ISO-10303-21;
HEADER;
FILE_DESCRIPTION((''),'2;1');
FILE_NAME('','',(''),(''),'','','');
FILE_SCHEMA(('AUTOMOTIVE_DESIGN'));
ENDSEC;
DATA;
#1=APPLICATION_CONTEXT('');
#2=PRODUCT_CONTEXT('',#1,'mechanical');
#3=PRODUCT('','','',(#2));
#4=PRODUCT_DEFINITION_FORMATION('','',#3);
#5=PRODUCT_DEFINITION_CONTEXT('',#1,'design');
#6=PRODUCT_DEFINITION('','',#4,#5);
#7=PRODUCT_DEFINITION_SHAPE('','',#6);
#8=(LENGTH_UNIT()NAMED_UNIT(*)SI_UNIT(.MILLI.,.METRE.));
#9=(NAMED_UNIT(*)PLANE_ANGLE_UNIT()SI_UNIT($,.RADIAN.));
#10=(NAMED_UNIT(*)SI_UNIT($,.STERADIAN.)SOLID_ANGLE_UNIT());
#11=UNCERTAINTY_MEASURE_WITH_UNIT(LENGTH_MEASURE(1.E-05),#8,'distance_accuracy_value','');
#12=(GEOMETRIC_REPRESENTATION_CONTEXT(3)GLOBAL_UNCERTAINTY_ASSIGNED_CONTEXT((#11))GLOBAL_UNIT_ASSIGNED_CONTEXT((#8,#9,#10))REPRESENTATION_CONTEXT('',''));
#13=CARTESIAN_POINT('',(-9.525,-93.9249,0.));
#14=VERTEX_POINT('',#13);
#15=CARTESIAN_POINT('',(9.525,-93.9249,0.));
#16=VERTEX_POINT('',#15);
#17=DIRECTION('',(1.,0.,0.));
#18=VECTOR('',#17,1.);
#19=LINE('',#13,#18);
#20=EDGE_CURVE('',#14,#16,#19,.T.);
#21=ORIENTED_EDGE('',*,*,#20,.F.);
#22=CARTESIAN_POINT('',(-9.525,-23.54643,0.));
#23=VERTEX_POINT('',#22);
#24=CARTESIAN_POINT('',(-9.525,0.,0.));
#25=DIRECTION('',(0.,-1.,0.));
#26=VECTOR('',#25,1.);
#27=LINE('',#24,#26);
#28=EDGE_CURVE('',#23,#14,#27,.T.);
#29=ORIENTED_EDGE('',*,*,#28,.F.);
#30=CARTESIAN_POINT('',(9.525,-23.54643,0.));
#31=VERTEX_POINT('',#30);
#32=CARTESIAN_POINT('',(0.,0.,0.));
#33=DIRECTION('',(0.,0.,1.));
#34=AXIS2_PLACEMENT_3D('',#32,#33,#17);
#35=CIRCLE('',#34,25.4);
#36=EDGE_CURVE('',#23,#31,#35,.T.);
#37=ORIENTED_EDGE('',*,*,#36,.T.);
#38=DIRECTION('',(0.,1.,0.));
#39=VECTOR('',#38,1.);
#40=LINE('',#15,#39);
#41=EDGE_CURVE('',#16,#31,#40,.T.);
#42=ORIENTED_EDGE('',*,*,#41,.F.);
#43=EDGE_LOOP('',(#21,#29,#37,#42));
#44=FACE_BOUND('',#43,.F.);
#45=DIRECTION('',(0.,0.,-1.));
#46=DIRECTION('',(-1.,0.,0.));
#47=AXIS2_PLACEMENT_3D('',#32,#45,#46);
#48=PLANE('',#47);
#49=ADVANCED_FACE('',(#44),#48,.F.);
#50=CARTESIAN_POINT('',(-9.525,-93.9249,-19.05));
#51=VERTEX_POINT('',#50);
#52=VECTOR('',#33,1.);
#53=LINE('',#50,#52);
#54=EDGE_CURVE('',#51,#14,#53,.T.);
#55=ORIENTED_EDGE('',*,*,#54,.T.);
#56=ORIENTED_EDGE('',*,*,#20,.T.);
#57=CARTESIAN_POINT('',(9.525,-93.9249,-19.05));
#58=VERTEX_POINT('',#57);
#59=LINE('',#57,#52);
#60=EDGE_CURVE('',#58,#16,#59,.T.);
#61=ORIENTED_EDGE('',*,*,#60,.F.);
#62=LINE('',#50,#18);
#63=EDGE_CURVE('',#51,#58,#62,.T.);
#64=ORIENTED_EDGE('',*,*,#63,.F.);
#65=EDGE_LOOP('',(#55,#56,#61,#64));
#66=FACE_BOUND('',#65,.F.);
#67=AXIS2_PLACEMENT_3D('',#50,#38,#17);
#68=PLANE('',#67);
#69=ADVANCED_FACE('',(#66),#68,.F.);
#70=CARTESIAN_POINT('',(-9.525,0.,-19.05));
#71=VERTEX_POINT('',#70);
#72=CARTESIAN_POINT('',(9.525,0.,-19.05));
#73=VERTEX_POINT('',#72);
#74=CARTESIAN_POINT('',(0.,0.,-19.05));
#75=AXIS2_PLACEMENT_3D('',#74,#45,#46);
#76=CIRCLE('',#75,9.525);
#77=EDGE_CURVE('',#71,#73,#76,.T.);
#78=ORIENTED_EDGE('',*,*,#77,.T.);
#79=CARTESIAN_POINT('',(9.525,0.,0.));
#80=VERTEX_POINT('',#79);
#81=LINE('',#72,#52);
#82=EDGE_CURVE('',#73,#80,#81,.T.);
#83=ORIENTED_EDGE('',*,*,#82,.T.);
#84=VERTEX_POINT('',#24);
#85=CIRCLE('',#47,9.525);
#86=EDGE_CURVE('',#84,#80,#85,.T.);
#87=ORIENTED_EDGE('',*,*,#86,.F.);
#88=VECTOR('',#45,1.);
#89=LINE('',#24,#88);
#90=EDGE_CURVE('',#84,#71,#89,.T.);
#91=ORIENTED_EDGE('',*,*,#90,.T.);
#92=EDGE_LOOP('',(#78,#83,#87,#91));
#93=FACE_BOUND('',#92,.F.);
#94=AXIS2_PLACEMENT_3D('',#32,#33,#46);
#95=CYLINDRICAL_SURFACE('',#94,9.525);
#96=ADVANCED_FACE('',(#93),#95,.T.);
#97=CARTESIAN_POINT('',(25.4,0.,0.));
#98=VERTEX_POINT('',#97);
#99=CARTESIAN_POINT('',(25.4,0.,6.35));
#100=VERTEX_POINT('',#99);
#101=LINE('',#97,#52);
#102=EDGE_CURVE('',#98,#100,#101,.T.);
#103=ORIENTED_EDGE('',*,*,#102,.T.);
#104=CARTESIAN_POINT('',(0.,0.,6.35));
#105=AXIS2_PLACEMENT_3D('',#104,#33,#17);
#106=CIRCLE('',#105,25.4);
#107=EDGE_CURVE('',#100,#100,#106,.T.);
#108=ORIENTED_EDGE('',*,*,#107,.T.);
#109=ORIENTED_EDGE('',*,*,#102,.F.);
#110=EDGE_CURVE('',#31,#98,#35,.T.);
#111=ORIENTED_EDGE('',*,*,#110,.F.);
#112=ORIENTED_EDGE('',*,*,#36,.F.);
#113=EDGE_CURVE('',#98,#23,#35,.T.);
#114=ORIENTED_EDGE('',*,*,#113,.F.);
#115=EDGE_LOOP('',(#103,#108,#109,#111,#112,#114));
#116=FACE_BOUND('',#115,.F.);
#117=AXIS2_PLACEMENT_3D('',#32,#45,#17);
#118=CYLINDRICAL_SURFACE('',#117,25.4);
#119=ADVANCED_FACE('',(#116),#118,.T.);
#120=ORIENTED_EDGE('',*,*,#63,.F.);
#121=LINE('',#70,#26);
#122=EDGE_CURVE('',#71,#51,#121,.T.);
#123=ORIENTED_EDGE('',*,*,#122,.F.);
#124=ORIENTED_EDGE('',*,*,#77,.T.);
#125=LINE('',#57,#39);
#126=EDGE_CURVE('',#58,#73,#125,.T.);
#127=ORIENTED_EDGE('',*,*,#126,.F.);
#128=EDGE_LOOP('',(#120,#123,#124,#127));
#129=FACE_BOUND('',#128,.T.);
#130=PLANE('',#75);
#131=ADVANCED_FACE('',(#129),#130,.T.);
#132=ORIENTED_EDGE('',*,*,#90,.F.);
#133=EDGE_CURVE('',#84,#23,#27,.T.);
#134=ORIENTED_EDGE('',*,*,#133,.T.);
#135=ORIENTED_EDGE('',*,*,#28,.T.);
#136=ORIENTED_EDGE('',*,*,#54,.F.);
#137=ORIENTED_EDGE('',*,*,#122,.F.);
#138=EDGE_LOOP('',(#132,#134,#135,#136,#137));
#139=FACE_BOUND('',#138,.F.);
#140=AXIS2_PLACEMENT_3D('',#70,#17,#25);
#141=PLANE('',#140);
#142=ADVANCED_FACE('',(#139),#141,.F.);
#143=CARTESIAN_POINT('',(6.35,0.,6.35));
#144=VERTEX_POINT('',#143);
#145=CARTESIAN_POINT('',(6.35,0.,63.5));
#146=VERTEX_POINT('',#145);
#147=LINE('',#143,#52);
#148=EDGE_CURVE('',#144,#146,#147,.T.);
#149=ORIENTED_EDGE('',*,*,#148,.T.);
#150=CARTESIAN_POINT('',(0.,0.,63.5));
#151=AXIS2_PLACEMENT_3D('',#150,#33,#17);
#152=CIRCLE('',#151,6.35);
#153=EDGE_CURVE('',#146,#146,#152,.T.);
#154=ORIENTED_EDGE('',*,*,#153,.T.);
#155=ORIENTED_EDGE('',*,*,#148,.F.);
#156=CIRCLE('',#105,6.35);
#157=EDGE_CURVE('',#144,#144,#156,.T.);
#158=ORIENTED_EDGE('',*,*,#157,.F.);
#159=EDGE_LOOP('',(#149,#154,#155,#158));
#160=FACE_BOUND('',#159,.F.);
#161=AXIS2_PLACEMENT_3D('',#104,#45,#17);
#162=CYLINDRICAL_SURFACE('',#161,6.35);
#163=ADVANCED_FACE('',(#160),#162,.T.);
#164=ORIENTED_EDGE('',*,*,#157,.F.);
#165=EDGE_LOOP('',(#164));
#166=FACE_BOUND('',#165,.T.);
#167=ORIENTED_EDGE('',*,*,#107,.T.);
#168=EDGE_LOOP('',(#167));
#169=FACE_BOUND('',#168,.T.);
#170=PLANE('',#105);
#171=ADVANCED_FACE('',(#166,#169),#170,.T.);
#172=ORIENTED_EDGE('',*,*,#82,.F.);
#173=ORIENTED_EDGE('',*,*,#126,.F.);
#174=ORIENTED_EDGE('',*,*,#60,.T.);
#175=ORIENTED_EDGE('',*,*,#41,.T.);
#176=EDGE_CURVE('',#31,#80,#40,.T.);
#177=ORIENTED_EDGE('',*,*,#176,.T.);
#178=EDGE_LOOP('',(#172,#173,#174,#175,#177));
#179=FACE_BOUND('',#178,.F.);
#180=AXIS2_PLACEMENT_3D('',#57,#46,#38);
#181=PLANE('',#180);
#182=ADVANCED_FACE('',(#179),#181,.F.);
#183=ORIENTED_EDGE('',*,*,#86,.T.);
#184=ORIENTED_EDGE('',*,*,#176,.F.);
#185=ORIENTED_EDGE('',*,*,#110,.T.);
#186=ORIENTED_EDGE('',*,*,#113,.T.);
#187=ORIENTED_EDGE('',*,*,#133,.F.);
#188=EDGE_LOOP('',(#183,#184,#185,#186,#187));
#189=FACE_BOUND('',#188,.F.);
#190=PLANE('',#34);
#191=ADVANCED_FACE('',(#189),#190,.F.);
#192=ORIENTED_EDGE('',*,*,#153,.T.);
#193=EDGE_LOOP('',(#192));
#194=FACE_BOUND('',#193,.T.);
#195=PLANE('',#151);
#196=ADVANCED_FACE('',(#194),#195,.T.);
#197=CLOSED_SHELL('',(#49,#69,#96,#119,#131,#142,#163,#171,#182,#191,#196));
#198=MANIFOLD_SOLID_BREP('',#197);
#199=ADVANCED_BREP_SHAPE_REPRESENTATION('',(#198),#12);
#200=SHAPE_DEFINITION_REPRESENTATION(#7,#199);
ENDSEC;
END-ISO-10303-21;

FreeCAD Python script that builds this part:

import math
import FreeCAD as App
import Part
import Sketcher
from FreeCAD import Vector
Q = App.Units.Quantity

doc = App.newDocument("Part")
body = doc.addObject("PartDesign::Body", "Body")

sketch1 = body.newObject("Sketcher::SketchObject", "Sketch")
sketch1.AttachmentSupport = (doc.getObject("XY_Plane"), [""])
sketch1.MapMode = "FlatFace"
sketch1.addGeometry(Part.Circle(Vector(0, 0, 0), Vector(0, 0, 1), 25.4), False)
sketch1.addConstraint([
    Sketcher.Constraint("Coincident", 0, 3, -1, 1),
    Sketcher.Constraint("Diameter", 0, Q("2 in")),
])
pad1 = body.newObject("PartDesign::Pad", "Pad")
pad1.Profile = sketch1
pad1.Length = Q("0.25 in")

sketch2 = body.newObject("Sketcher::SketchObject", "Sketch001")
sketch2.AttachmentSupport = (doc.getObject("XY_Plane"), [""])
sketch2.MapMode = "FlatFace"
sketch2.AttachmentOffset = App.Placement(Vector(0, 0, 0.25 * 25.4), App.Rotation())
sketch2.addGeometry(Part.Circle(Vector(0, 0, 0), Vector(0, 0, 1), 6.35), False)
sketch2.addConstraint([
    Sketcher.Constraint("Coincident", 0, 3, -1, 1),
    Sketcher.Constraint("Diameter", 0, Q("0.5 in")),
])
pad2 = body.newObject("PartDesign::Pad", "Pad001")
pad2.Profile = sketch2
pad2.Length = Q("2.25 in")

sketch3 = body.newObject("Sketcher::SketchObject", "Sketch002")
sketch3.AttachmentSupport = (doc.getObject("XY_Plane"), [""])
sketch3.MapMode = "FlatFace"
sketch3.addGeometry([
    Part.Circle(Vector(0, 0, 0), Vector(0, 0, 1), 9.525),
    Part.Circle(Vector(0, 0, 0), Vector(0, 0, 1), 6.35),
], False)
sketch3.addConstraint([
    Sketcher.Constraint("Coincident", 0, 3, -1, 1),
    Sketcher.Constraint("Coincident", 1, 3, -1, 1),
    Sketcher.Constraint("Diameter", 0, Q("0.75 in")),
    Sketcher.Constraint("Diameter", 1, Q("0.5 in")),
])
pad3 = body.newObject("PartDesign::Pad", "Pad002")
pad3.Profile = sketch3
pad3.Length = Q("0.75 in")
pad3.Reversed = True

sketch4 = body.newObject("Sketcher::SketchObject", "Sketch003")
sketch4.AttachmentSupport = (doc.getObject("XY_Plane"), [""])
sketch4.MapMode = "FlatFace"
sketch4.AttachmentOffset = App.Placement(Vector(0, 0, -0.75 * 25.4), App.Rotation())
sketch4.addGeometry([
    Part.LineSegment(Vector(-9.525, -93.9249, 0), Vector(-9.525, 0, 0)),
    Part.ArcOfCircle(Part.Circle(Vector(0, 0, 0), Vector(0, 0, 1), 9.525), math.radians(180), math.radians(360)),
    Part.LineSegment(Vector(9.525, 0, 0), Vector(9.525, -93.9249, 0)),
    Part.LineSegment(Vector(9.525, -93.9249, 0), Vector(-9.525, -93.9249, 0)),
], False)
sketch4.addConstraint([
    Sketcher.Constraint("Tangent", 0, 2, 1, 1),
    Sketcher.Constraint("Tangent", 1, 2, 2, 1),
    Sketcher.Constraint("Coincident", 2, 2, 3, 1),
    Sketcher.Constraint("Coincident", 3, 2, 0, 1),
    Sketcher.Constraint("Vertical", 0),
    Sketcher.Constraint("Vertical", 2),
    Sketcher.Constraint("Horizontal", 3),
    Sketcher.Constraint("Coincident", 1, 3, -1, 1),
    Sketcher.Constraint("Radius", 1, Q("0.375 in")),
    Sketcher.Constraint("DistanceY", 0, 1, 0, 2, Q("93.925 mm")),
])
pad4 = body.newObject("PartDesign::Pad", "Pad003")
pad4.Profile = sketch4
pad4.Length = Q("0.75 in")

sketch5 = body.newObject("Sketcher::SketchObject", "Sketch004")
sketch5.AttachmentSupport = (doc.getObject("XY_Plane"), [""])
sketch5.MapMode = "FlatFace"
sketch5.addGeometry(Part.Circle(Vector(0, 0, 0), Vector(0, 0, 1), 6.35), False)
sketch5.addConstraint([
    Sketcher.Constraint("Coincident", 0, 3, -1, 1),
    Sketcher.Constraint("Diameter", 0, Q("0.5 in")),
])
pad5 = body.newObject("PartDesign::Pad", "Pad004")
pad5.Profile = sketch5
pad5.Length = Q("0.75 in")
pad5.Reversed = True

doc.recompute()
